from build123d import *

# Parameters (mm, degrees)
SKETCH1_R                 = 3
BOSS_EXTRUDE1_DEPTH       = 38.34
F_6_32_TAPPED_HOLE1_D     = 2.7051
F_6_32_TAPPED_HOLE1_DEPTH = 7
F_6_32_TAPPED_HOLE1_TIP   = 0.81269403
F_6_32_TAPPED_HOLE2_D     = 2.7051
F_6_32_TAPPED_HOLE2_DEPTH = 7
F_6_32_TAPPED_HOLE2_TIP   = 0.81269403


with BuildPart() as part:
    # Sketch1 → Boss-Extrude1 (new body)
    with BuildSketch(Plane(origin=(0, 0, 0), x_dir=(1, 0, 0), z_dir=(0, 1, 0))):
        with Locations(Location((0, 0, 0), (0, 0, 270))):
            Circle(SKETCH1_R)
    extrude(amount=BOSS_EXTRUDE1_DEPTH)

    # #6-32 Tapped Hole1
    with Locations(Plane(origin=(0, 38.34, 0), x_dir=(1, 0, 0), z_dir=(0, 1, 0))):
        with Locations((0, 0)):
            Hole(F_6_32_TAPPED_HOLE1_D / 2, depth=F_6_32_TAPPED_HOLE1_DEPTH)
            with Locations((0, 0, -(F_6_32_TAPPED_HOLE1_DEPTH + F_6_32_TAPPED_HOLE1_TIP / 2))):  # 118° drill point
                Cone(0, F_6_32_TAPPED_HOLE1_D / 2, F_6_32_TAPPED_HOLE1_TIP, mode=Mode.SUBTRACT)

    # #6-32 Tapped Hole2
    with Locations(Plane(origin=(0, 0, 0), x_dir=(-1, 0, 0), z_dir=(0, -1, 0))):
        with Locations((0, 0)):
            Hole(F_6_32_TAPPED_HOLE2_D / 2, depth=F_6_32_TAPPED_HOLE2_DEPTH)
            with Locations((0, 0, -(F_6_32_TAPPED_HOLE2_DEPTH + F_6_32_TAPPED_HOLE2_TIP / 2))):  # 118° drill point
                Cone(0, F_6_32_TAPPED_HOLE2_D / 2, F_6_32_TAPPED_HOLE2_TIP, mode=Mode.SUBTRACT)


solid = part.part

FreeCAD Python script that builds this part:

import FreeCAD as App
import Part
import Sketcher
Q = App.Units.Quantity

doc = App.newDocument("Part")
params = doc.addObject("Spreadsheet::Sheet", "Params")
for row, (alias, value) in enumerate([
    ("sketch1_diameter", "6 mm"),
    ("pad1_length", "38.34 mm"),
    ("hole_diameter", "2.7051 mm"),
    ("hole_depth", "7 mm"),
    ("hole2_diameter", "2.7051 mm"),
    ("hole2_depth", "7 mm"),
], start=1):
    params.set(f"A{row}", alias)
    params.set(f"B{row}", "=" + value)
    params.setAlias(f"B{row}", alias)

body = doc.addObject("PartDesign::Body", "Body")

sketch1 = doc.addObject("Sketcher::SketchObject", "Sketch")
body.addObject(sketch1)
sketch1.AttachmentSupport = (doc.XZ_Plane, [""])
sketch1.MapMode = "FlatFace"
sketch1.addGeometry(Part.Circle(App.Vector(0, 0, 0), App.Vector(0, 0, 1), 3), False)
sketch1.addConstraint([
    Sketcher.Constraint("Coincident", 0, 3, -1, 1),
    Sketcher.Constraint("Diameter", 0, Q("6 mm")),
])
sketch1.setExpression("Constraints[1]", "Params.sketch1_diameter")
pad1 = doc.addObject("PartDesign::Pad", "Pad")
body.addObject(pad1)
pad1.Profile = sketch1
pad1.setExpression("Length", "Params.pad1_length")
pad1.Reversed = True

sketch2 = doc.addObject("Sketcher::SketchObject", "Sketch001")
body.addObject(sketch2)
sketch2.AttachmentSupport = (doc.XZ_Plane, [""])
sketch2.MapMode = "FlatFace"
sketch2.AttachmentOffset = App.Placement(App.Vector(0, 0, -38.34), App.Rotation())
sketch2.addGeometry(Part.Circle(App.Vector(0, 0, 0), App.Vector(0, 0, 1), 1.4), False)
sketch2.addConstraint([
    Sketcher.Constraint("Coincident", 0, 3, -1, 1),
    Sketcher.Constraint("Diameter", 0, Q("2.7051 mm")),
])
doc.recompute()
hole = doc.addObject("PartDesign::Hole", "Hole")
body.addObject(hole)
hole.Profile = sketch2
hole.ThreadType = "None"
hole.setExpression("Diameter", "Params.hole_diameter")
hole.DepthType = "Dimension"
hole.setExpression("Depth", "Params.hole_depth")
hole.DrillPoint = "Angled"
hole.DrillPointAngle = 118
hole.Reversed = True

sketch3 = doc.addObject("Sketcher::SketchObject", "Sketch002")
body.addObject(sketch3)
sketch3.AttachmentSupport = (doc.XZ_Plane, [""])
sketch3.MapMode = "FlatFace"
sketch3.addGeometry(Part.Circle(App.Vector(0, 0, 0), App.Vector(0, 0, 1), 1.4), False)
sketch3.addConstraint([
    Sketcher.Constraint("Coincident", 0, 3, -1, 1),
    Sketcher.Constraint("Diameter", 0, Q("2.7051 mm")),
])
doc.recompute()
hole2 = doc.addObject("PartDesign::Hole", "Hole001")
body.addObject(hole2)
hole2.Profile = sketch3
hole2.ThreadType = "None"
hole2.setExpression("Diameter", "Params.hole2_diameter")
hole2.DepthType = "Dimension"
hole2.setExpression("Depth", "Params.hole2_depth")
hole2.DrillPoint = "Angled"
hole2.DrillPointAngle = 118

doc.recompute()
